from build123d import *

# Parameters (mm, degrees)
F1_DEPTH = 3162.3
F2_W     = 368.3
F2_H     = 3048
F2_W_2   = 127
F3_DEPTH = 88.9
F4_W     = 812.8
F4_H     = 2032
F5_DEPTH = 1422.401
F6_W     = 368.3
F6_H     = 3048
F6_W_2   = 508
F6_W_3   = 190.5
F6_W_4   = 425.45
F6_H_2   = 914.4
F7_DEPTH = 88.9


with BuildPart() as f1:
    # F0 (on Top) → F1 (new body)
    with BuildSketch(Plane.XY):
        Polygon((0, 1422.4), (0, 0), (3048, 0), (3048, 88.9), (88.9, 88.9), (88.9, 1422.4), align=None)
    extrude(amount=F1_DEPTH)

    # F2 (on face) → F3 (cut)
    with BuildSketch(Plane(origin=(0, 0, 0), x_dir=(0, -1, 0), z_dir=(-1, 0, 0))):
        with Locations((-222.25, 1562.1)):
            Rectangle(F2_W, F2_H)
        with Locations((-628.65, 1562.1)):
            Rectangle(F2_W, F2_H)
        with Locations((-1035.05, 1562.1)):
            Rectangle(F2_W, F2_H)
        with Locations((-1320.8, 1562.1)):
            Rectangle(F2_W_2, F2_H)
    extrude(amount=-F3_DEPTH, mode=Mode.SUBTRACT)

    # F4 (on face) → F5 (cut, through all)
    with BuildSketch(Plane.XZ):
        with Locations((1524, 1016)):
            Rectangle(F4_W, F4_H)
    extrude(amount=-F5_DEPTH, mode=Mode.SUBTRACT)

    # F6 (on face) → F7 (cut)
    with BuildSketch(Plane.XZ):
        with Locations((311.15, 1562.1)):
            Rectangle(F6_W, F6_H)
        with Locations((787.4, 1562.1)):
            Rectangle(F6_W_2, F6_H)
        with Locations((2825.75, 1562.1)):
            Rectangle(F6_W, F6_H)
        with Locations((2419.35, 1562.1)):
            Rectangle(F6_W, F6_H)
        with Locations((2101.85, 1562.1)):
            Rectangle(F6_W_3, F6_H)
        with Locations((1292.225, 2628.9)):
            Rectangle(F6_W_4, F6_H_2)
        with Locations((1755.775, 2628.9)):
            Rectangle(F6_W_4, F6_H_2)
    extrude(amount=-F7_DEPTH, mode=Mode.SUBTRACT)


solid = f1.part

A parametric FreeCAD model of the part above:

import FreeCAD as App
import Part
import Sketcher
Q = App.Units.Quantity

doc = App.newDocument("Part")
body = doc.addObject("PartDesign::Body", "Body")

sketch1 = doc.addObject("Sketcher::SketchObject", "Sketch")
body.addObject(sketch1)
sketch1.AttachmentSupport = (doc.XY_Plane, [""])
sketch1.MapMode = "FlatFace"
sketch1.addGeometry([
    Part.LineSegment(App.Vector(0, 1422.4, 0), App.Vector(0, 0, 0)),
    Part.LineSegment(App.Vector(0, 0, 0), App.Vector(3048, 0, 0)),
    Part.LineSegment(App.Vector(3048, 0, 0), App.Vector(3048, 88.9, 0)),
    Part.LineSegment(App.Vector(3048, 88.9, 0), App.Vector(88.9, 88.9, 0)),
    Part.LineSegment(App.Vector(88.9, 88.9, 0), App.Vector(88.9, 1422.4, 0)),
    Part.LineSegment(App.Vector(88.9, 1422.4, 0), App.Vector(0, 1422.4, 0)),
], False)
sketch1.addConstraint([
    Sketcher.Constraint("Coincident", 0, 2, 1, 1),
    Sketcher.Constraint("Coincident", 1, 2, 2, 1),
    Sketcher.Constraint("Coincident", 2, 2, 3, 1),
    Sketcher.Constraint("Coincident", 3, 2, 4, 1),
    Sketcher.Constraint("Coincident", 4, 2, 5, 1),
    Sketcher.Constraint("Coincident", 5, 2, 0, 1),
    Sketcher.Constraint("Vertical", 0),
    Sketcher.Constraint("Horizontal", 1),
    Sketcher.Constraint("Vertical", 2),
    Sketcher.Constraint("Horizontal", 3),
    Sketcher.Constraint("Vertical", 4),
    Sketcher.Constraint("Horizontal", 5),
    Sketcher.Constraint("Coincident", 0, 2, -1, 1),
    Sketcher.Constraint("Equal", 5, 2),
    Sketcher.Constraint("DistanceX", 1, 1, 1, 2, Q("120 in")),
    Sketcher.Constraint("DistanceY", 0, 2, 0, 1, Q("56 in")),
    Sketcher.Constraint("DistanceX", 3, 2, 3, 1, Q("116.5 in")),
])
pad1 = doc.addObject("PartDesign::Pad", "Pad")
body.addObject(pad1)
pad1.Profile = sketch1
pad1.Length = Q("124.5 in")

sketch2 = doc.addObject("Sketcher::SketchObject", "Sketch001")
body.addObject(sketch2)
sketch2.AttachmentSupport = (doc.YZ_Plane, [""])
sketch2.MapMode = "FlatFace"
sketch2.addGeometry([
    Part.LineSegment(App.Vector(406.4, 3086.1, 0), App.Vector(406.4, 38.1, 0)),
    Part.LineSegment(App.Vector(406.4, 38.1, 0), App.Vector(38.1, 38.1, 0)),
    Part.LineSegment(App.Vector(38.1, 38.1, 0), App.Vector(38.1, 3086.1, 0)),
    Part.LineSegment(App.Vector(38.1, 3086.1, 0), App.Vector(406.4, 3086.1, 0)),
    Part.LineSegment(App.Vector(812.8, 3086.1, 0), App.Vector(812.8, 38.1, 0)),
    Part.LineSegment(App.Vector(812.8, 38.1, 0), App.Vector(444.5, 38.1, 0)),
    Part.LineSegment(App.Vector(444.5, 38.1, 0), App.Vector(444.5, 3086.1, 0)),
    Part.LineSegment(App.Vector(444.5, 3086.1, 0), App.Vector(812.8, 3086.1, 0)),
    Part.LineSegment(App.Vector(1219.2, 3086.1, 0), App.Vector(1219.2, 38.1, 0)),
    Part.LineSegment(App.Vector(1219.2, 38.1, 0), App.Vector(850.9, 38.1, 0)),
    Part.LineSegment(App.Vector(850.9, 38.1, 0), App.Vector(850.9, 3086.1, 0)),
    Part.LineSegment(App.Vector(850.9, 3086.1, 0), App.Vector(1219.2, 3086.1, 0)),
    Part.LineSegment(App.Vector(1384.3, 3086.1, 0), App.Vector(1384.3, 38.1, 0)),
    Part.LineSegment(App.Vector(1384.3, 38.1, 0), App.Vector(1257.3, 38.1, 0)),
    Part.LineSegment(App.Vector(1257.3, 38.1, 0), App.Vector(1257.3, 3086.1, 0)),
    Part.LineSegment(App.Vector(1257.3, 3086.1, 0), App.Vector(1384.3, 3086.1, 0)),
], False)
sketch2.addConstraint([
    Sketcher.Constraint("Coincident", 0, 2, 1, 1),
    Sketcher.Constraint("Coincident", 1, 2, 2, 1),
    Sketcher.Constraint("Coincident", 2, 2, 3, 1),
    Sketcher.Constraint("Coincident", 3, 2, 0, 1),
    Sketcher.Constraint("Coincident", 4, 2, 5, 1),
    Sketcher.Constraint("Coincident", 5, 2, 6, 1),
    Sketcher.Constraint("Coincident", 6, 2, 7, 1),
    Sketcher.Constraint("Coincident", 7, 2, 4, 1),
    Sketcher.Constraint("Coincident", 8, 2, 9, 1),
    Sketcher.Constraint("Coincident", 9, 2, 10, 1),
    Sketcher.Constraint("Coincident", 10, 2, 11, 1),
    Sketcher.Constraint("Coincident", 11, 2, 8, 1),
    Sketcher.Constraint("Coincident", 12, 2, 13, 1),
    Sketcher.Constraint("Coincident", 13, 2, 14, 1),
    Sketcher.Constraint("Coincident", 14, 2, 15, 1),
    Sketcher.Constraint("Coincident", 15, 2, 12, 1),
    Sketcher.Constraint("Vertical", 0),
    Sketcher.Constraint("Horizontal", 1),
    Sketcher.Constraint("Vertical", 2),
    Sketcher.Constraint("Horizontal", 3),
    Sketcher.Constraint("Vertical", 4),
    Sketcher.Constraint("Horizontal", 5),
    Sketcher.Constraint("Vertical", 6),
    Sketcher.Constraint("Horizontal", 7),
    Sketcher.Constraint("Vertical", 8),
    Sketcher.Constraint("Horizontal", 9),
    Sketcher.Constraint("Vertical", 10),
    Sketcher.Constraint("Horizontal", 11),
    Sketcher.Constraint("Vertical", 12),
    Sketcher.Constraint("Horizontal", 13),
    Sketcher.Constraint("Vertical", 14),
    Sketcher.Constraint("Horizontal", 15),
    Sketcher.Constraint("Horizontal", 1, 2, 4, 2),
    Sketcher.Constraint("Horizontal", 3, 2, 6, 2),
    Sketcher.Constraint("Horizontal", 5, 2, 8, 2),
    Sketcher.Constraint("Horizontal", 7, 2, 10, 2),
    Sketcher.Constraint("Horizontal", 9, 2, 12, 2),
    Sketcher.Constraint("Horizontal", 11, 2, 14, 2),
    Sketcher.Constraint("Equal", 3, 5),
    Sketcher.Constraint("Equal", 7, 9),
    Sketcher.Constraint("DistanceX", 13, 2, 13, 1, Q("5 in")),
    Sketcher.Constraint("DistanceY", 0, 2, 0, 1, Q("120 in")),
    Sketcher.Constraint("DistanceX", 1, 2, 1, 1, Q("14.5 in")),
    Sketcher.Constraint("DistanceX", -1, 1, 0, 2, Q("16 in")),
    Sketcher.Constraint("DistanceX", -1, 1, 4, 2, Q("32 in")),
    Sketcher.Constraint("DistanceX", -1, 1, 8, 2, Q("48 in")),
    Sketcher.Constraint("DistanceX", 9, 2, 12, 2, Q("21 in")),
    Sketcher.Constraint("DistanceY", -1, 1, 0, 2, Q("1.5 in")),
])
pocket1 = doc.addObject("PartDesign::Pocket", "Pocket")
body.addObject(pocket1)
pocket1.Profile = sketch2
pocket1.Length = Q("3.5 in")
pocket1.Reversed = True

sketch3 = doc.addObject("Sketcher::SketchObject", "Sketch002")
body.addObject(sketch3)
sketch3.AttachmentSupport = (doc.XZ_Plane, [""])
sketch3.MapMode = "FlatFace"
sketch3.addGeometry([
    Part.LineSegment(App.Vector(1117.6, 2032, 0), App.Vector(1117.6, 0, 0)),
    Part.LineSegment(App.Vector(1117.6, 0, 0), App.Vector(1930.4, 0, 0)),
    Part.LineSegment(App.Vector(1930.4, 0, 0), App.Vector(1930.4, 2032, 0)),
    Part.LineSegment(App.Vector(1930.4, 2032, 0), App.Vector(1117.6, 2032, 0)),
], False)
sketch3.addConstraint([
    Sketcher.Constraint("Coincident", 0, 2, 1, 1),
    Sketcher.Constraint("Coincident", 1, 2, 2, 1),
    Sketcher.Constraint("Coincident", 2, 2, 3, 1),
    Sketcher.Constraint("Coincident", 3, 2, 0, 1),
    Sketcher.Constraint("Vertical", 0),
    Sketcher.Constraint("Horizontal", 1),
    Sketcher.Constraint("Vertical", 2),
    Sketcher.Constraint("Horizontal", 3),
    Sketcher.Constraint("PointOnObject", 0, 2, -1),
    Sketcher.Constraint("DistanceX", 1, 1, 1, 2, Q("32 in")),
    Sketcher.Constraint("DistanceY", 0, 2, 0, 1, Q("80 in")),
    Sketcher.Constraint("DistanceX", -1, 1, 0, 2, Q("44 in")),
])
pocket2 = doc.addObject("PartDesign::Pocket", "Pocket001")
body.addObject(pocket2)
pocket2.Profile = sketch3
pocket2.Type = "ThroughAll"

sketch4 = doc.addObject("Sketcher::SketchObject", "Sketch003")
body.addObject(sketch4)
sketch4.AttachmentSupport = (doc.XZ_Plane, [""])
sketch4.MapMode = "FlatFace"
sketch4.addGeometry([
    Part.LineSegment(App.Vector(127, 3086.1, 0), App.Vector(127, 38.1, 0)),
    Part.LineSegment(App.Vector(127, 38.1, 0), App.Vector(495.3, 38.1, 0)),
    Part.LineSegment(App.Vector(495.3, 38.1, 0), App.Vector(495.3, 3086.1, 0)),
    Part.LineSegment(App.Vector(495.3, 3086.1, 0), App.Vector(127, 3086.1, 0)),
    Part.LineSegment(App.Vector(533.4, 3086.1, 0), App.Vector(533.4, 38.1, 0)),
    Part.LineSegment(App.Vector(533.4, 38.1, 0), App.Vector(1041.4, 38.1, 0)),
    Part.LineSegment(App.Vector(1041.4, 38.1, 0), App.Vector(1041.4, 3086.1, 0)),
    Part.LineSegment(App.Vector(1041.4, 3086.1, 0), App.Vector(533.4, 3086.1, 0)),
    Part.LineSegment(App.Vector(2641.6, 3086.1, 0), App.Vector(2641.6, 38.1, 0)),
    Part.LineSegment(App.Vector(2641.6, 38.1, 0), App.Vector(3009.9, 38.1, 0)),
    Part.LineSegment(App.Vector(3009.9, 38.1, 0), App.Vector(3009.9, 3086.1, 0)),
    Part.LineSegment(App.Vector(3009.9, 3086.1, 0), App.Vector(2641.6, 3086.1, 0)),
    Part.LineSegment(App.Vector(2235.2, 3086.1, 0), App.Vector(2235.2, 38.1, 0)),
    Part.LineSegment(App.Vector(2235.2, 38.1, 0), App.Vector(2603.5, 38.1, 0)),
    Part.LineSegment(App.Vector(2603.5, 38.1, 0), App.Vector(2603.5, 3086.1, 0)),
    Part.LineSegment(App.Vector(2603.5, 3086.1, 0), App.Vector(2235.2, 3086.1, 0)),
    Part.LineSegment(App.Vector(2006.6, 3086.1, 0), App.Vector(2006.6, 38.1, 0)),
    Part.LineSegment(App.Vector(2006.6, 38.1, 0), App.Vector(2197.1, 38.1, 0)),
    Part.LineSegment(App.Vector(2197.1, 38.1, 0), App.Vector(2197.1, 3086.1, 0)),
    Part.LineSegment(App.Vector(2197.1, 3086.1, 0), App.Vector(2006.6, 3086.1, 0)),
    Part.LineSegment(App.Vector(1079.5, 3086.1, 0), App.Vector(1079.5, 2171.7, 0)),
    Part.LineSegment(App.Vector(1079.5, 2171.7, 0), App.Vector(1504.95, 2171.7, 0)),
    Part.LineSegment(App.Vector(1504.95, 2171.7, 0), App.Vector(1504.95, 3086.1, 0)),
    Part.LineSegment(App.Vector(1504.95, 3086.1, 0), App.Vector(1079.5, 3086.1, 0)),
    Part.LineSegment(App.Vector(1543.05, 3086.1, 0), App.Vector(1543.05, 2171.7, 0)),
    Part.LineSegment(App.Vector(1543.05, 2171.7, 0), App.Vector(1968.5, 2171.7, 0)),
    Part.LineSegment(App.Vector(1968.5, 2171.7, 0), App.Vector(1968.5, 3086.1, 0)),
    Part.LineSegment(App.Vector(1968.5, 3086.1, 0), App.Vector(1543.05, 3086.1, 0)),
], False)
sketch4.addConstraint([
    Sketcher.Constraint("Coincident", 0, 2, 1, 1),
    Sketcher.Constraint("Coincident", 1, 2, 2, 1),
    Sketcher.Constraint("Coincident", 2, 2, 3, 1),
    Sketcher.Constraint("Coincident", 3, 2, 0, 1),
    Sketcher.Constraint("Coincident", 4, 2, 5, 1),
    Sketcher.Constraint("Coincident", 5, 2, 6, 1),
    Sketcher.Constraint("Coincident", 6, 2, 7, 1),
    Sketcher.Constraint("Coincident", 7, 2, 4, 1),
    Sketcher.Constraint("Coincident", 8, 2, 9, 1),
    Sketcher.Constraint("Coincident", 9, 2, 10, 1),
    Sketcher.Constraint("Coincident", 10, 2, 11, 1),
    Sketcher.Constraint("Coincident", 11, 2, 8, 1),
    Sketcher.Constraint("Coincident", 12, 2, 13, 1),
    Sketcher.Constraint("Coincident", 13, 2, 14, 1),
    Sketcher.Constraint("Coincident", 14, 2, 15, 1),
    Sketcher.Constraint("Coincident", 15, 2, 12, 1),
    Sketcher.Constraint("Coincident", 16, 2, 17, 1),
    Sketcher.Constraint("Coincident", 17, 2, 18, 1),
    Sketcher.Constraint("Coincident", 18, 2, 19, 1),
    Sketcher.Constraint("Coincident", 19, 2, 16, 1),
    Sketcher.Constraint("Coincident", 20, 2, 21, 1),
    Sketcher.Constraint("Coincident", 21, 2, 22, 1),
    Sketcher.Constraint("Coincident", 22, 2, 23, 1),
    Sketcher.Constraint("Coincident", 23, 2, 20, 1),
    Sketcher.Constraint("Coincident", 24, 2, 25, 1),
    Sketcher.Constraint("Coincident", 25, 2, 26, 1),
    Sketcher.Constraint("Coincident", 26, 2, 27, 1),
    Sketcher.Constraint("Coincident", 27, 2, 24, 1),
    Sketcher.Constraint("Vertical", 0),
    Sketcher.Constraint("Horizontal", 1),
    Sketcher.Constraint("Vertical", 2),
    Sketcher.Constraint("Horizontal", 3),
    Sketcher.Constraint("Vertical", 4),
    Sketcher.Constraint("Horizontal", 5),
    Sketcher.Constraint("Vertical", 6),
    Sketcher.Constraint("Horizontal", 7),
    Sketcher.Constraint("Vertical", 8),
    Sketcher.Constraint("Horizontal", 9),
    Sketcher.Constraint("Vertical", 10),
    Sketcher.Constraint("Horizontal", 11),
    Sketcher.Constraint("Vertical", 12),
    Sketcher.Constraint("Horizontal", 13),
    Sketcher.Constraint("Vertical", 14),
    Sketcher.Constraint("Horizontal", 15),
    Sketcher.Constraint("Vertical", 16),
    Sketcher.Constraint("Horizontal", 17),
    Sketcher.Constraint("Vertical", 18),
    Sketcher.Constraint("Horizontal", 19),
    Sketcher.Constraint("Vertical", 20),
    Sketcher.Constraint("Horizontal", 21),
    Sketcher.Constraint("Vertical", 22),
    Sketcher.Constraint("Horizontal", 23),
    Sketcher.Constraint("Vertical", 24),
    Sketcher.Constraint("Horizontal", 25),
    Sketcher.Constraint("Vertical", 26),
    Sketcher.Constraint("Horizontal", 27),
    Sketcher.Constraint("Horizontal", 1, 2, 4, 2),
    Sketcher.Constraint("Horizontal", 3, 2, 6, 2),
    Sketcher.Constraint("Horizontal", 5, 2, 8, 2),
    Sketcher.Constraint("Horizontal", 7, 2, 10, 2),
    Sketcher.Constraint("Horizontal", 9, 2, 12, 2),
    Sketcher.Constraint("Horizontal", 11, 2, 14, 2),
    Sketcher.Constraint("Horizontal", 13, 2, 16, 2),
    Sketcher.Constraint("Horizontal", 15, 2, 18, 2),
    Sketcher.Constraint("Horizontal", 19, 2, 22, 2),
    Sketcher.Constraint("Horizontal", 21, 2, 24, 2),
    Sketcher.Constraint("Horizontal", 23, 2, 26, 2),
    Sketcher.Constraint("Equal", 3, 9),
    Sketcher.Constraint("Equal", 11, 13),
    Sketcher.Constraint("Equal", 23, 25),
    Sketcher.Constraint("DistanceX", 5, 1, 5, 2, Q("20 in")),
    Sketcher.Constraint("DistanceY", 0, 2, 0, 1, Q("120 in")),
    Sketcher.Constraint("DistanceY", 20, 2, 20, 1, Q("36 in")),
    Sketcher.Constraint("DistanceX", 1, 1, 1, 2, Q("14.5 in")),
    Sketcher.Constraint("DistanceX", 17, 1, 17, 2, Q("7.5 in")),
    Sketcher.Constraint("DistanceX", -1, 1, 0, 2, Q("5 in")),
    Sketcher.Constraint("DistanceX", -1, 1, 4, 2, Q("21 in")),
    Sketcher.Constraint("DistanceX", -1, 1, 8, 2, Q("104 in")),
    Sketcher.Constraint("DistanceX", -1, 1, 12, 2, Q("88 in")),
    Sketcher.Constraint("DistanceX", -1, 1, 16, 2, Q("79 in")),
    Sketcher.Constraint("DistanceX", 2, 2, 20, 2, Q("23 in")),
    Sketcher.Constraint("DistanceX", 20, 2, 25, 2, Q("35 in")),
    Sketcher.Constraint("DistanceX", 21, 1, 21, 2, Q("16.75 in")),
    Sketcher.Constraint("DistanceY", -1, 1, 0, 2, Q("1.5 in")),
])
pocket3 = doc.addObject("PartDesign::Pocket", "Pocket002")
body.addObject(pocket3)
pocket3.Profile = sketch4
pocket3.Length = Q("3.5 in")

doc.recompute()
